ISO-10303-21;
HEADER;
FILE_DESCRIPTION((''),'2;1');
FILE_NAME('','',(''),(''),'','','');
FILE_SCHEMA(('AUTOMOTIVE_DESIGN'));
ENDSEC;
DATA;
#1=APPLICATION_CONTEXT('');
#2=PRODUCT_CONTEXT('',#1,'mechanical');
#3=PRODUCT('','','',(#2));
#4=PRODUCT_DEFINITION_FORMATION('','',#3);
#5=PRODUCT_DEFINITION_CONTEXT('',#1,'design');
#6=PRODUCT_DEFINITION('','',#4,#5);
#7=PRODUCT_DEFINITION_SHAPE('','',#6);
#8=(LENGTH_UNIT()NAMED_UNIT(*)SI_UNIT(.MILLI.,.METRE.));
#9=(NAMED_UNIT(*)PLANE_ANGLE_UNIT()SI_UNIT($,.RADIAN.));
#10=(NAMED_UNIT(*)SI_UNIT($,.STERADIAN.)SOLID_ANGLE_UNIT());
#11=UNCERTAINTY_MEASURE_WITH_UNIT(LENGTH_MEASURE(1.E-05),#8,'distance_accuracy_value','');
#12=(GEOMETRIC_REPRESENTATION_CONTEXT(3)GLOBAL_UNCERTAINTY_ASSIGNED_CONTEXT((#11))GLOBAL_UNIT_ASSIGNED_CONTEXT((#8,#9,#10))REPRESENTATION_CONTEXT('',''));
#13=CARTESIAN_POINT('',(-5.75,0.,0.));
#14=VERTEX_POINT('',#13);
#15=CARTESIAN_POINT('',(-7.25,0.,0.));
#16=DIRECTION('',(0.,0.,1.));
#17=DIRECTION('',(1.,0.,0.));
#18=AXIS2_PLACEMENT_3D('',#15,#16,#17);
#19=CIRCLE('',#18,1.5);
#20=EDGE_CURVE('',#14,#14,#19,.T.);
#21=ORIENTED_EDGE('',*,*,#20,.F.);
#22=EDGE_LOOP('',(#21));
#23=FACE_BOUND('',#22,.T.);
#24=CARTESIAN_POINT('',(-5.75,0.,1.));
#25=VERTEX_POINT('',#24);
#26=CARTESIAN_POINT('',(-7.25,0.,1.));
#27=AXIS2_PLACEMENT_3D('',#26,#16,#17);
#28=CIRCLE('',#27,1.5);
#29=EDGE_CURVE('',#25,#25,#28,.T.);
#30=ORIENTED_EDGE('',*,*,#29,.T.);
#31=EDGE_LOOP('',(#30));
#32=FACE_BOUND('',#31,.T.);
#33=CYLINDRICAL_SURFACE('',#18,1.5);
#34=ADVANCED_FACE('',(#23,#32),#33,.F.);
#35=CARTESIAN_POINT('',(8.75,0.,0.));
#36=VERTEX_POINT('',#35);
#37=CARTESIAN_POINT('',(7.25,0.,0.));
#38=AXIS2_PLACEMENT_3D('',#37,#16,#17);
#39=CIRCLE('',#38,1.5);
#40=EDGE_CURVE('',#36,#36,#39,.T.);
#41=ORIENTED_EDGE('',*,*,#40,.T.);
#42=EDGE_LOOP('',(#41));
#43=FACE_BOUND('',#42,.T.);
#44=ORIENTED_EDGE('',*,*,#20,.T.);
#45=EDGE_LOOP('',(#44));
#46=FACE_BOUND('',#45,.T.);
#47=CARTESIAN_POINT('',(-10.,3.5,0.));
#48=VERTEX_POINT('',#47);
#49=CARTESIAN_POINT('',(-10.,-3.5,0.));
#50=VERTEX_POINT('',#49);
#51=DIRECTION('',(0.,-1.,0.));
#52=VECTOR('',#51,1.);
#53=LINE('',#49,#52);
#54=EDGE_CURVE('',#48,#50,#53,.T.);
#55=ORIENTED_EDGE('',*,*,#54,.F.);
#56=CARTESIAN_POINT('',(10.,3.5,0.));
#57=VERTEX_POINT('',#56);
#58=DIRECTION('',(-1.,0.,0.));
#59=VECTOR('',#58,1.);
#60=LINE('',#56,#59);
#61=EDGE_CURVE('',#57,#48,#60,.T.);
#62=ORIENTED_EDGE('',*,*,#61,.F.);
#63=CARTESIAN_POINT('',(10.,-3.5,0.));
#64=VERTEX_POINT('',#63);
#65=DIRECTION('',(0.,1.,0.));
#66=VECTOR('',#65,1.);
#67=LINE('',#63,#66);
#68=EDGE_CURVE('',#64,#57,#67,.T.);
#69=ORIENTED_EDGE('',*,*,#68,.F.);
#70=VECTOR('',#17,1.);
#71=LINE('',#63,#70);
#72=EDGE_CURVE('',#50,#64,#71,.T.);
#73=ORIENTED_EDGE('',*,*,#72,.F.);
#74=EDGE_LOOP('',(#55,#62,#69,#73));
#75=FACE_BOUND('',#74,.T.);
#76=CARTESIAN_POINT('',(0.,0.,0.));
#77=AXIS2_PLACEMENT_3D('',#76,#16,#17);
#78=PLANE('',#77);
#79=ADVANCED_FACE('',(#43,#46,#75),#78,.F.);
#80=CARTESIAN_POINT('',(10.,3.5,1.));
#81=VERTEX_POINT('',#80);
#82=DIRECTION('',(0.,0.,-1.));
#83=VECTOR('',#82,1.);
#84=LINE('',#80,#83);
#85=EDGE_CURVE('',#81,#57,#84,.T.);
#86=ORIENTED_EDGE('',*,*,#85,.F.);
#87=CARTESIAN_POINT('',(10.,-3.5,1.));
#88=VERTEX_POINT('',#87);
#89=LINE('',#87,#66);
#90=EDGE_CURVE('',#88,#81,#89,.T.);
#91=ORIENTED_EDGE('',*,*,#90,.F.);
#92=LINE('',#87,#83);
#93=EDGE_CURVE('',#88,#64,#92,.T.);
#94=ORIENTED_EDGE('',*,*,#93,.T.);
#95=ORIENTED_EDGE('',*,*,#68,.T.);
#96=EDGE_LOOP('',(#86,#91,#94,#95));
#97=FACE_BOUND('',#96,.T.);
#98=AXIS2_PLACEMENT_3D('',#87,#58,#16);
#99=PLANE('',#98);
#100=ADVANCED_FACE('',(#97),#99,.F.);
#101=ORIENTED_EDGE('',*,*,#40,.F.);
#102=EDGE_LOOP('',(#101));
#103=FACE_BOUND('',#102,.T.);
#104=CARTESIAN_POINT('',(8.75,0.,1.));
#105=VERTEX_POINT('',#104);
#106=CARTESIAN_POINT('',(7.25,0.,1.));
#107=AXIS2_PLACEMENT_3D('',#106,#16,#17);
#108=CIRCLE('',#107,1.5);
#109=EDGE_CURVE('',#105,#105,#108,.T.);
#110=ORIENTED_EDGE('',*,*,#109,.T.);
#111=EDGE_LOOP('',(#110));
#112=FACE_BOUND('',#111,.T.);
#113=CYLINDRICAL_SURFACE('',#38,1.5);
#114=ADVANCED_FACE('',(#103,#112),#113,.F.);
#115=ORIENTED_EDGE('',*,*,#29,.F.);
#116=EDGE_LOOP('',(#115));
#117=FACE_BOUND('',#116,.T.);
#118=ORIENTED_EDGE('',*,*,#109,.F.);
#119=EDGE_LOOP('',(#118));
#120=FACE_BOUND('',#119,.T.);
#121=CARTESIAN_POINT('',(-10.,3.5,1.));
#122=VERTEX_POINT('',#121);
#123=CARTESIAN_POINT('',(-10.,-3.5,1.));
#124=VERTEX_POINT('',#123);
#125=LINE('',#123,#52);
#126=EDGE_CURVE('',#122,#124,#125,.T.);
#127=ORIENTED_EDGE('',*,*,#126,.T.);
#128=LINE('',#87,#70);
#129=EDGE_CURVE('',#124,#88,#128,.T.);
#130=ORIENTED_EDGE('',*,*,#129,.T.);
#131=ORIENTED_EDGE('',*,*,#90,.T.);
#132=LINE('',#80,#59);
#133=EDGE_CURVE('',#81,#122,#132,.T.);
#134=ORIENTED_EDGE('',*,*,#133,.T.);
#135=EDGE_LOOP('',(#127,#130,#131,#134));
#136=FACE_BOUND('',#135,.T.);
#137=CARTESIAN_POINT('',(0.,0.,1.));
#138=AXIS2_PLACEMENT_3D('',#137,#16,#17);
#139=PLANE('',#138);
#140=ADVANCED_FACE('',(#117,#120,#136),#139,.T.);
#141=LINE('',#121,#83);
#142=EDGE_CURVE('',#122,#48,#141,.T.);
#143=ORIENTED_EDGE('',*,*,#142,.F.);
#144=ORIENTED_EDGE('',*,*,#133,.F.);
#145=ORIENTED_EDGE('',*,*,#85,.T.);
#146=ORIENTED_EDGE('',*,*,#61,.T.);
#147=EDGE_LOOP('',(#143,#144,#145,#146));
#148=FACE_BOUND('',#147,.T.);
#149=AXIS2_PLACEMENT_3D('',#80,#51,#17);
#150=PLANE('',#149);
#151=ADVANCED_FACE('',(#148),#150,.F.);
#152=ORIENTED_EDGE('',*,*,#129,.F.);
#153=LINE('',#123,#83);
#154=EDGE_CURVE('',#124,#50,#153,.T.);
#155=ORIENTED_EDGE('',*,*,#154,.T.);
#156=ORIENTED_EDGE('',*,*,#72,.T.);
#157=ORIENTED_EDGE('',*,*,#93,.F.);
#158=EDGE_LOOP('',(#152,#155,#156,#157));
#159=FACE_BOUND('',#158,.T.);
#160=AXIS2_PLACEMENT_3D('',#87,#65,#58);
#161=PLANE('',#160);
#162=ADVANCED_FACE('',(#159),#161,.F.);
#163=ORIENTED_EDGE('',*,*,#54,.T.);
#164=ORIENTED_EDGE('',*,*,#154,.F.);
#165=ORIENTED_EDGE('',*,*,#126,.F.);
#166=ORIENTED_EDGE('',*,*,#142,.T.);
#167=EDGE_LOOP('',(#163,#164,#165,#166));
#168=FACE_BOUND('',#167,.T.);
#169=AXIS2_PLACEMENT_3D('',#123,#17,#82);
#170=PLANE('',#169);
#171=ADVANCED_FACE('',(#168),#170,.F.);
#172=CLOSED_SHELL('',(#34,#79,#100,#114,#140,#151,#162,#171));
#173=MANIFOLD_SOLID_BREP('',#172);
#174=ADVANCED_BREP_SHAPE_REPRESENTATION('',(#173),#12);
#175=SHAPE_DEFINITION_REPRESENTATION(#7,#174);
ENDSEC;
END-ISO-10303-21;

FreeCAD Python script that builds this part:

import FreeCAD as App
import Part
import Sketcher
from FreeCAD import Vector
Q = App.Units.Quantity

doc = App.newDocument("Part")
body = doc.addObject("PartDesign::Body", "Body")

# Sketch on XY plane
sketch1 = body.newObject("Sketcher::SketchObject", "Sketch")
sketch1.AttachmentSupport = (doc.getObject("XY_Plane"), [""])
sketch1.MapMode = "FlatFace"
sketch1.addGeometry([
    Part.LineSegment(Vector(-10, 4, 0), Vector(-10, -4, 0)),
    Part.LineSegment(Vector(-10, -4, 0), Vector(10, -4, 0)),
    Part.LineSegment(Vector(10, -4, 0), Vector(10, 4, 0)),
    Part.LineSegment(Vector(10, 4, 0), Vector(-10, 4, 0)),
], False)
sketch1.addConstraint([
    Sketcher.Constraint("Coincident", 0, 2, 1, 1),
    Sketcher.Constraint("Coincident", 1, 2, 2, 1),
    Sketcher.Constraint("Coincident", 2, 2, 3, 1),
    Sketcher.Constraint("Coincident", 3, 2, 0, 1),
    Sketcher.Constraint("Vertical", 0),
    Sketcher.Constraint("Horizontal", 1),
    Sketcher.Constraint("Vertical", 2),
    Sketcher.Constraint("Horizontal", 3),
    Sketcher.Constraint("Symmetric", 0, 2, 2, 2, -1, 1),
    Sketcher.Constraint("DistanceX", 1, 1, 1, 2, Q("20 mm")),
    Sketcher.Constraint("DistanceY", 0, 2, 0, 1, Q("7 mm")),
])
pad1 = body.newObject("PartDesign::Pad", "Pad")
pad1.Profile = sketch1
pad1.Length = 1

# Sketch on XY plane
sketch2 = body.newObject("Sketcher::SketchObject", "Sketch001")
sketch2.AttachmentSupport = (doc.getObject("XY_Plane"), [""])
sketch2.MapMode = "FlatFace"
sketch2.AttachmentOffset = App.Placement(Vector(0, 0, 1), App.Rotation())
sketch2.addGeometry([
    Part.Circle(Vector(-7.2, 0, 0), Vector(0, 0, 1), 1.5),
    Part.Circle(Vector(7.2, 0, 0), Vector(0, 0, 1), 1.5),
], False)
sketch2.addConstraint([
    Sketcher.Constraint("Equal", 0, 1),
    Sketcher.Constraint("Symmetric", 0, 3, 1, 3, -1, 1),
    Sketcher.Constraint("PointOnObject", 0, 3, -1),
    Sketcher.Constraint("Diameter", 0, Q("3 mm")),
    Sketcher.Constraint("DistanceX", 0, 3, 1, 3, Q("14.5 mm")),
])
pocket1 = body.newObject("PartDesign::Pocket", "Pocket")
pocket1.Profile = sketch2
pocket1.Length = 1

doc.recompute()
